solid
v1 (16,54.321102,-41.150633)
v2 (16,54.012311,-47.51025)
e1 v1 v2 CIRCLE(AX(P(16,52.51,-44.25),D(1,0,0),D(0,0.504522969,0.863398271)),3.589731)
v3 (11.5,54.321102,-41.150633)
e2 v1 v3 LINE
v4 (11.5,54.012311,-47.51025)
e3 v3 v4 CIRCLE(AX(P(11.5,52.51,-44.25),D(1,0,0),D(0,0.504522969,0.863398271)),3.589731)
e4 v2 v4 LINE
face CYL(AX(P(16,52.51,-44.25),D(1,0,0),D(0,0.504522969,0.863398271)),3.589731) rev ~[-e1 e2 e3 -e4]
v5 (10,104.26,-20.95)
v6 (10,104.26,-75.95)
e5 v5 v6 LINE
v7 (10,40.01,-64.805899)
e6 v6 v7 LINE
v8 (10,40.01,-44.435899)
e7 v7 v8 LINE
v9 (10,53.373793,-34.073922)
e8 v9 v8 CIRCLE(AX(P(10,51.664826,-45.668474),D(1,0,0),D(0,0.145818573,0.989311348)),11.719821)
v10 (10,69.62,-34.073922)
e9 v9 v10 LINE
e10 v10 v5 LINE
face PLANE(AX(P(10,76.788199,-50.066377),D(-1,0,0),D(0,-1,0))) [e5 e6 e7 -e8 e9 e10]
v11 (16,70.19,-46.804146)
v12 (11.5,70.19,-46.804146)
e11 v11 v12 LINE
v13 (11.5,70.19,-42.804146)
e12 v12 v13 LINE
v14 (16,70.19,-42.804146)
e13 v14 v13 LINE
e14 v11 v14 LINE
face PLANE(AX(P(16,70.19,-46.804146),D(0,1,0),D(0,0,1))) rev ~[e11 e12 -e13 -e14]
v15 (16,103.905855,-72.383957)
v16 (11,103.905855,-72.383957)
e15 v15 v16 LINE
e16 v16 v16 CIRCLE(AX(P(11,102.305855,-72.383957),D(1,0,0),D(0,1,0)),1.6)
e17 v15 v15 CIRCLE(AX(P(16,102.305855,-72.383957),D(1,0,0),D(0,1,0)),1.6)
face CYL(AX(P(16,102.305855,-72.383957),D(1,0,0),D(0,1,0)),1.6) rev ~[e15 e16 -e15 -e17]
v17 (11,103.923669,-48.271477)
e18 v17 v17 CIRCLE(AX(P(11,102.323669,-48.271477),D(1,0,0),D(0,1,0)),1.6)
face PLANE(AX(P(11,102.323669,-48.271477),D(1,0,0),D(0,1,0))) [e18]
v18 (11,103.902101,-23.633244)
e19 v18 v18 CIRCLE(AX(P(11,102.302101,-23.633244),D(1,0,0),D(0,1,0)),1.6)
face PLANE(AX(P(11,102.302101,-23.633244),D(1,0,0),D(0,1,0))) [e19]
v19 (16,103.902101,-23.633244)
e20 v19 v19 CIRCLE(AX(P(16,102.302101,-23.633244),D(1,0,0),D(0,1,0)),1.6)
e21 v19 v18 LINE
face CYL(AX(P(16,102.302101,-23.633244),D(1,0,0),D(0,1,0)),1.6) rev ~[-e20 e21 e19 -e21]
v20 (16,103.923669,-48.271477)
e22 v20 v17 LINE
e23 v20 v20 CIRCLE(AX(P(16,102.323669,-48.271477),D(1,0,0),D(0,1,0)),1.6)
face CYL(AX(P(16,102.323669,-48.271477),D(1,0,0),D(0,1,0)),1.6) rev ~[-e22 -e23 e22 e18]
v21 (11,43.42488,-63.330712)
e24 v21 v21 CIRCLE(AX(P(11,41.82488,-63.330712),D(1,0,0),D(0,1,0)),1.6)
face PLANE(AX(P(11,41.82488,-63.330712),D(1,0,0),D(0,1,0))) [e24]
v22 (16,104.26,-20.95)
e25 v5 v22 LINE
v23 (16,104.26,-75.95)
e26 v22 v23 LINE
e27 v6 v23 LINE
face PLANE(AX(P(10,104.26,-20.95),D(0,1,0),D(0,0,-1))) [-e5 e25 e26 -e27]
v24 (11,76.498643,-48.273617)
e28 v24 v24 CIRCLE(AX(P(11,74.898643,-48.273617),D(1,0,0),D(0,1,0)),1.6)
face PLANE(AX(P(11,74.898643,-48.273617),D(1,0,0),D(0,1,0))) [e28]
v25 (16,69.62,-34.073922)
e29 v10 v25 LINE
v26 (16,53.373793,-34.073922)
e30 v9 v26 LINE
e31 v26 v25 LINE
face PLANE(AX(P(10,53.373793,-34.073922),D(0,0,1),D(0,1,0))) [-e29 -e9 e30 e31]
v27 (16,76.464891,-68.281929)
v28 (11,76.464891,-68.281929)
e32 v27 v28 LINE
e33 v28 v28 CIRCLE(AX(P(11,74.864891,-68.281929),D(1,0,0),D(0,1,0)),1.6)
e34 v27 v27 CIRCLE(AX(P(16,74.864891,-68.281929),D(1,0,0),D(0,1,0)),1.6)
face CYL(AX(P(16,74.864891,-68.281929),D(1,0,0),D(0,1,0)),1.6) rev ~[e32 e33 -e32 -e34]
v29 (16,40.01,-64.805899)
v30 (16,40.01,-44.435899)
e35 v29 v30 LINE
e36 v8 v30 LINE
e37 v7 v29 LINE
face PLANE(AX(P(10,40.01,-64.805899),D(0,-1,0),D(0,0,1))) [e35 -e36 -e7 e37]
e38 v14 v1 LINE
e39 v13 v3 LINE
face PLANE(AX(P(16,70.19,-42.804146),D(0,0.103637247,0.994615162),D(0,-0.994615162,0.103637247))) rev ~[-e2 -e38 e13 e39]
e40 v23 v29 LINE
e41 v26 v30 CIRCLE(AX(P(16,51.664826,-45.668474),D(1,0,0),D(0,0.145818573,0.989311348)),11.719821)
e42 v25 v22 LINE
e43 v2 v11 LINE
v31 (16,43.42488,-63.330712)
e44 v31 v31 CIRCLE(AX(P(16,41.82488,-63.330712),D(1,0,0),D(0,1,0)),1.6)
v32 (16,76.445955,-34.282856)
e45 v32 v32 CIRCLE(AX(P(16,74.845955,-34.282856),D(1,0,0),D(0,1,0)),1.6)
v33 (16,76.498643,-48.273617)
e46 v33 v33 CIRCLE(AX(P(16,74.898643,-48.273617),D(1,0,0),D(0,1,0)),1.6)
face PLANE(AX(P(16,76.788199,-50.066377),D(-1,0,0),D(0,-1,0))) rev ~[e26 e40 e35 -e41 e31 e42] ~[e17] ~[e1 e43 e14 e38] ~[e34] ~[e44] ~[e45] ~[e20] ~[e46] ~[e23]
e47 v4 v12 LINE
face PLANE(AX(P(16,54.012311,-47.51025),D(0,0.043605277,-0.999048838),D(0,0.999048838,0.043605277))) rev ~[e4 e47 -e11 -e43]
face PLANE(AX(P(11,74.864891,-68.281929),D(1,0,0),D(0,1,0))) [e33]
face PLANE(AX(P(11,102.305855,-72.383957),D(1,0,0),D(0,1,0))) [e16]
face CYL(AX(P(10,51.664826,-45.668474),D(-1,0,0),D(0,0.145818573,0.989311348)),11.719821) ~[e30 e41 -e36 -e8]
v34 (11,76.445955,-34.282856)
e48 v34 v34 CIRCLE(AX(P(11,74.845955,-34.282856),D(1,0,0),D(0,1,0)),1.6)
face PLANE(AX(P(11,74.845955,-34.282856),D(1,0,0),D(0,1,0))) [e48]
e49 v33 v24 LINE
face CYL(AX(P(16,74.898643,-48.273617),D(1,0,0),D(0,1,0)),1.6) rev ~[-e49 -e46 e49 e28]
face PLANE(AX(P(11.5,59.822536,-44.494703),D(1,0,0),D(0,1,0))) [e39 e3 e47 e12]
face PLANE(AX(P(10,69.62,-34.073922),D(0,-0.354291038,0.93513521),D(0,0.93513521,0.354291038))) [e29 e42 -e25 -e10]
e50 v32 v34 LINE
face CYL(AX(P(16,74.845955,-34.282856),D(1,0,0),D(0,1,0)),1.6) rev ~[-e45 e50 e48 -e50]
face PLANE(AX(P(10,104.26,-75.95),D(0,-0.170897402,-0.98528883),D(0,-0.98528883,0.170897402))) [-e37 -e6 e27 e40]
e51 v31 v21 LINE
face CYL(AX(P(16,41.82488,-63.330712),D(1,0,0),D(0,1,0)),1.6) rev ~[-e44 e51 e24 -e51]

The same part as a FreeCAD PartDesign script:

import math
import FreeCAD as App
import Part
import Sketcher
from FreeCAD import Vector
Q = App.Units.Quantity

doc = App.newDocument("Part")
params = doc.addObject("Spreadsheet::Sheet", "Params")
for row, (alias, value) in enumerate([
    ("sketch1_height", "55 mm"),
    ("sketch1_height2", "20.37 mm"),
    ("pad1_length", "6 mm"),
    ("sketch2_height", "4 mm"),
    ("pocket1_length", "4.5 mm"),
    ("pocket1_length2", "100 mm"),
    ("sketch3_diameter", "3.2 mm"),
    ("pocket2_length", "5 mm"),
], start=1):
    params.set(f"A{row}", alias)
    params.set(f"B{row}", "=" + value)
    params.setAlias(f"B{row}", alias)

body = doc.addObject("PartDesign::Body", "Body")

sketch1 = body.newObject("Sketcher::SketchObject", "Sketch")
sketch1.AttachmentSupport = (doc.getObject("YZ_Plane"), [""])
sketch1.MapMode = "FlatFace"
sketch1.addGeometry(Part.LineSegment(Vector(104, -21, 0), Vector(70, -34, 0)), False)
sketch1.addGeometry(Part.LineSegment(Vector(70, -34, 0), Vector(53, -34, 0)), False)
sketch1.addGeometry(Part.ArcOfCircle(Part.Circle(Vector(52, -46, 0), Vector(0, 0, 1), 12), math.radians(82), math.radians(174)), False)
sketch1.addGeometry(Part.LineSegment(Vector(40, -44, 0), Vector(40, -65, 0)), False)
sketch1.addGeometry(Part.LineSegment(Vector(40, -65, 0), Vector(104, -76, 0)), False)
sketch1.addGeometry(Part.LineSegment(Vector(104, -76, 0), Vector(104, -21, 0)), False)
sketch1.addConstraint(Sketcher.Constraint("Coincident", 0, 2, 1, 1))
sketch1.addConstraint(Sketcher.Constraint("Coincident", 1, 2, 2, 1))
sketch1.addConstraint(Sketcher.Constraint("Coincident", 2, 2, 3, 1))
sketch1.addConstraint(Sketcher.Constraint("Coincident", 3, 2, 4, 1))
sketch1.addConstraint(Sketcher.Constraint("Coincident", 4, 2, 5, 1))
sketch1.addConstraint(Sketcher.Constraint("Coincident", 5, 2, 0, 1))
sketch1.addConstraint(Sketcher.Constraint("Horizontal", 1))
sketch1.addConstraint(Sketcher.Constraint("Vertical", 3))
sketch1.addConstraint(Sketcher.Constraint("Vertical", 5))
sketch1.addConstraint(Sketcher.Constraint("DistanceY", 5, 1, 5, 2, Q("55 mm")))
sketch1.addConstraint(Sketcher.Constraint("DistanceY", 3, 2, 3, 1, Q("20.37 mm")))
sketch1.addConstraint(Sketcher.Constraint("Angle", 0, Q("-159.25 deg")))
sketch1.addConstraint(Sketcher.Constraint("Angle", 4, Q("-9.84 deg")))
sketch1.addConstraint(Sketcher.Constraint("DistanceX", -1, 1, 0, 2, Q("69.62 mm")))
sketch1.addConstraint(Sketcher.Constraint("DistanceX", -1, 1, 2, 2, Q("40.01 mm")))
sketch1.addConstraint(Sketcher.Constraint("DistanceX", -1, 1, 4, 2, Q("104.26 mm")))
sketch1.addConstraint(Sketcher.Constraint("DistanceY", 4, 2, -1, 1, Q("75.95 mm")))
sketch1.addConstraint(Sketcher.Constraint("Radius", 2, Q("11.719821 mm")))
sketch1.addConstraint(Sketcher.Constraint("DistanceX", 1, 2, 1, 1, Q("16.246207 mm")))
sketch1.setExpression("Constraints[9]", "Params.sketch1_height")
sketch1.setExpression("Constraints[10]", "Params.sketch1_height2")
pad1 = body.newObject("PartDesign::Pad", "Pad")
pad1.Profile = sketch1
pad1.setExpression("Length", "Params.pad1_length")

sketch2 = body.newObject("Sketcher::SketchObject", "Sketch001")
sketch2.AttachmentSupport = (doc.getObject("YZ_Plane"), [""])
sketch2.MapMode = "FlatFace"
sketch2.AttachmentOffset = App.Placement(Vector(0, 0, 6), App.Rotation())
sketch2.addGeometry(Part.ArcOfCircle(Part.Circle(Vector(52.5, -44.2, 0), Vector(0, 0, 1), 3.6), math.radians(60), math.radians(295)), False)
sketch2.addGeometry(Part.LineSegment(Vector(54, -47.5, 0), Vector(70.2, -46.8, 0)), False)
sketch2.addGeometry(Part.LineSegment(Vector(70.2, -46.8, 0), Vector(70.2, -42.8, 0)), False)
sketch2.addGeometry(Part.LineSegment(Vector(70.2, -42.8, 0), Vector(54.3, -41.2, 0)), False)
sketch2.addConstraint(Sketcher.Constraint("Coincident", 0, 2, 1, 1))
sketch2.addConstraint(Sketcher.Constraint("Coincident", 1, 2, 2, 1))
sketch2.addConstraint(Sketcher.Constraint("Coincident", 2, 2, 3, 1))
sketch2.addConstraint(Sketcher.Constraint("Coincident", 3, 2, 0, 1))
sketch2.addConstraint(Sketcher.Constraint("Vertical", 2))
sketch2.addConstraint(Sketcher.Constraint("DistanceY", 2, 1, 2, 2, Q("4 mm")))
sketch2.addConstraint(Sketcher.Constraint("DistanceX", -1, 1, 0, 3, Q("52.51 mm")))
sketch2.addConstraint(Sketcher.Constraint("DistanceY", 0, 3, -1, 1, Q("44.25 mm")))
sketch2.addConstraint(Sketcher.Constraint("DistanceX", -1, 1, 1, 2, Q("70.19 mm")))
sketch2.addConstraint(Sketcher.Constraint("Radius", 0, Q("3.589731 mm")))
sketch2.addConstraint(Sketcher.Constraint("DistanceX", -1, 1, 3, 2, Q("54.321102 mm")))
sketch2.addConstraint(Sketcher.Constraint("Distance", 1, Q("16.193092 mm")))
sketch2.addConstraint(Sketcher.Constraint("DistanceX", -1, 1, 0, 2, Q("54.012311 mm")))
sketch2.setExpression("Constraints[5]", "Params.sketch2_height")
pocket1 = body.newObject("PartDesign::Pocket", "Pocket")
pocket1.Profile = sketch2
pocket1.Type = "TwoLengths"
pocket1.setExpression("Length", "Params.pocket1_length")
pocket1.setExpression("Length2", "Params.pocket1_length2")

sketch3 = body.newObject("Sketcher::SketchObject", "Sketch002")
sketch3.AttachmentSupport = (doc.getObject("YZ_Plane"), [""])
sketch3.MapMode = "FlatFace"
sketch3.AttachmentOffset = App.Placement(Vector(0, 0, 6), App.Rotation())
sketch3.addGeometry(Part.Circle(Vector(74.9, -48.3, 0), Vector(0, 0, 1), 1.6), False)
sketch3.addGeometry(Part.Circle(Vector(74.8, -34.3, 0), Vector(0, 0, 1), 1.6), False)
sketch3.addGeometry(Part.Circle(Vector(102.3, -23.6, 0), Vector(0, 0, 1), 1.6), False)
sketch3.addGeometry(Part.Circle(Vector(102.3, -48.3, 0), Vector(0, 0, 1), 1.6), False)
sketch3.addGeometry(Part.Circle(Vector(102.3, -72.4, 0), Vector(0, 0, 1), 1.6), False)
sketch3.addGeometry(Part.Circle(Vector(74.9, -68.3, 0), Vector(0, 0, 1), 1.6), False)
sketch3.addGeometry(Part.Circle(Vector(41.8, -63.3, 0), Vector(0, 0, 1), 1.6), False)
sketch3.addConstraint(Sketcher.Constraint("Equal", 0, 1))
sketch3.addConstraint(Sketcher.Constraint("Equal", 1, 2))
sketch3.addConstraint(Sketcher.Constraint("Equal", 2, 3))
sketch3.addConstraint(Sketcher.Constraint("Equal", 3, 4))
sketch3.addConstraint(Sketcher.Constraint("Equal", 4, 5))
sketch3.addConstraint(Sketcher.Constraint("Equal", 5, 6))
sketch3.addConstraint(Sketcher.Constraint("Diameter", 0, Q("3.2 mm")))
sketch3.addConstraint(Sketcher.Constraint("DistanceX", -1, 1, 2, 3, Q("102.302101 mm")))
sketch3.addConstraint(Sketcher.Constraint("DistanceX", 1, 3, 4, 3, Q("27.4599 mm")))
sketch3.addConstraint(Sketcher.Constraint("DistanceY", 4, 3, 1, 3, Q("38.101101 mm")))
sketch3.addConstraint(Sketcher.Constraint("DistanceX", -1, 1, 3, 3, Q("102.323669 mm")))
sketch3.addConstraint(Sketcher.Constraint("DistanceX", -1, 1, 5, 3, Q("74.864891 mm")))
sketch3.addConstraint(Sketcher.Constraint("DistanceY", 5, 3, -1, 1, Q("68.281929 mm")))
sketch3.addConstraint(Sketcher.Constraint("DistanceX", -1, 1, 6, 3, Q("41.82488 mm")))
sketch3.addConstraint(Sketcher.Constraint("DistanceX", 1, 3, 0, 3, Q("0.052688 mm")))
sketch3.addConstraint(Sketcher.Constraint("DistanceY", 0, 3, 1, 3, Q("13.990761 mm")))
sketch3.addConstraint(Sketcher.Constraint("DistanceY", 0, 3, 3, 3, Q("0.00214 mm")))
sketch3.addConstraint(Sketcher.Constraint("DistanceX", -1, 1, 0, 3, Q("74.898643 mm")))
sketch3.addConstraint(Sketcher.Constraint("DistanceY", 0, 3, -1, 1, Q("48.273617 mm")))
sketch3.addConstraint(Sketcher.Constraint("DistanceY", 2, 3, -1, 1, Q("23.633244 mm")))
sketch3.addConstraint(Sketcher.Constraint("DistanceY", 6, 3, -1, 1, Q("63.330712 mm")))
sketch3.setExpression("Constraints[6]", "Params.sketch3_diameter")
pocket2 = body.newObject("PartDesign::Pocket", "Pocket001")
pocket2.Profile = sketch3
pocket2.setExpression("Length", "Params.pocket2_length")
body2 = doc.addObject("PartDesign::Body", "Body001")
doc.recompute()

body.Placement = App.Placement(Vector(10, 0, 0), App.Rotation(Vector(0, 0, 1), 0))
boolean = body2.newObject("PartDesign::Boolean", "Boolean")
boolean.Type = "Fuse"
boolean.addObjects([body])

doc.recompute()
